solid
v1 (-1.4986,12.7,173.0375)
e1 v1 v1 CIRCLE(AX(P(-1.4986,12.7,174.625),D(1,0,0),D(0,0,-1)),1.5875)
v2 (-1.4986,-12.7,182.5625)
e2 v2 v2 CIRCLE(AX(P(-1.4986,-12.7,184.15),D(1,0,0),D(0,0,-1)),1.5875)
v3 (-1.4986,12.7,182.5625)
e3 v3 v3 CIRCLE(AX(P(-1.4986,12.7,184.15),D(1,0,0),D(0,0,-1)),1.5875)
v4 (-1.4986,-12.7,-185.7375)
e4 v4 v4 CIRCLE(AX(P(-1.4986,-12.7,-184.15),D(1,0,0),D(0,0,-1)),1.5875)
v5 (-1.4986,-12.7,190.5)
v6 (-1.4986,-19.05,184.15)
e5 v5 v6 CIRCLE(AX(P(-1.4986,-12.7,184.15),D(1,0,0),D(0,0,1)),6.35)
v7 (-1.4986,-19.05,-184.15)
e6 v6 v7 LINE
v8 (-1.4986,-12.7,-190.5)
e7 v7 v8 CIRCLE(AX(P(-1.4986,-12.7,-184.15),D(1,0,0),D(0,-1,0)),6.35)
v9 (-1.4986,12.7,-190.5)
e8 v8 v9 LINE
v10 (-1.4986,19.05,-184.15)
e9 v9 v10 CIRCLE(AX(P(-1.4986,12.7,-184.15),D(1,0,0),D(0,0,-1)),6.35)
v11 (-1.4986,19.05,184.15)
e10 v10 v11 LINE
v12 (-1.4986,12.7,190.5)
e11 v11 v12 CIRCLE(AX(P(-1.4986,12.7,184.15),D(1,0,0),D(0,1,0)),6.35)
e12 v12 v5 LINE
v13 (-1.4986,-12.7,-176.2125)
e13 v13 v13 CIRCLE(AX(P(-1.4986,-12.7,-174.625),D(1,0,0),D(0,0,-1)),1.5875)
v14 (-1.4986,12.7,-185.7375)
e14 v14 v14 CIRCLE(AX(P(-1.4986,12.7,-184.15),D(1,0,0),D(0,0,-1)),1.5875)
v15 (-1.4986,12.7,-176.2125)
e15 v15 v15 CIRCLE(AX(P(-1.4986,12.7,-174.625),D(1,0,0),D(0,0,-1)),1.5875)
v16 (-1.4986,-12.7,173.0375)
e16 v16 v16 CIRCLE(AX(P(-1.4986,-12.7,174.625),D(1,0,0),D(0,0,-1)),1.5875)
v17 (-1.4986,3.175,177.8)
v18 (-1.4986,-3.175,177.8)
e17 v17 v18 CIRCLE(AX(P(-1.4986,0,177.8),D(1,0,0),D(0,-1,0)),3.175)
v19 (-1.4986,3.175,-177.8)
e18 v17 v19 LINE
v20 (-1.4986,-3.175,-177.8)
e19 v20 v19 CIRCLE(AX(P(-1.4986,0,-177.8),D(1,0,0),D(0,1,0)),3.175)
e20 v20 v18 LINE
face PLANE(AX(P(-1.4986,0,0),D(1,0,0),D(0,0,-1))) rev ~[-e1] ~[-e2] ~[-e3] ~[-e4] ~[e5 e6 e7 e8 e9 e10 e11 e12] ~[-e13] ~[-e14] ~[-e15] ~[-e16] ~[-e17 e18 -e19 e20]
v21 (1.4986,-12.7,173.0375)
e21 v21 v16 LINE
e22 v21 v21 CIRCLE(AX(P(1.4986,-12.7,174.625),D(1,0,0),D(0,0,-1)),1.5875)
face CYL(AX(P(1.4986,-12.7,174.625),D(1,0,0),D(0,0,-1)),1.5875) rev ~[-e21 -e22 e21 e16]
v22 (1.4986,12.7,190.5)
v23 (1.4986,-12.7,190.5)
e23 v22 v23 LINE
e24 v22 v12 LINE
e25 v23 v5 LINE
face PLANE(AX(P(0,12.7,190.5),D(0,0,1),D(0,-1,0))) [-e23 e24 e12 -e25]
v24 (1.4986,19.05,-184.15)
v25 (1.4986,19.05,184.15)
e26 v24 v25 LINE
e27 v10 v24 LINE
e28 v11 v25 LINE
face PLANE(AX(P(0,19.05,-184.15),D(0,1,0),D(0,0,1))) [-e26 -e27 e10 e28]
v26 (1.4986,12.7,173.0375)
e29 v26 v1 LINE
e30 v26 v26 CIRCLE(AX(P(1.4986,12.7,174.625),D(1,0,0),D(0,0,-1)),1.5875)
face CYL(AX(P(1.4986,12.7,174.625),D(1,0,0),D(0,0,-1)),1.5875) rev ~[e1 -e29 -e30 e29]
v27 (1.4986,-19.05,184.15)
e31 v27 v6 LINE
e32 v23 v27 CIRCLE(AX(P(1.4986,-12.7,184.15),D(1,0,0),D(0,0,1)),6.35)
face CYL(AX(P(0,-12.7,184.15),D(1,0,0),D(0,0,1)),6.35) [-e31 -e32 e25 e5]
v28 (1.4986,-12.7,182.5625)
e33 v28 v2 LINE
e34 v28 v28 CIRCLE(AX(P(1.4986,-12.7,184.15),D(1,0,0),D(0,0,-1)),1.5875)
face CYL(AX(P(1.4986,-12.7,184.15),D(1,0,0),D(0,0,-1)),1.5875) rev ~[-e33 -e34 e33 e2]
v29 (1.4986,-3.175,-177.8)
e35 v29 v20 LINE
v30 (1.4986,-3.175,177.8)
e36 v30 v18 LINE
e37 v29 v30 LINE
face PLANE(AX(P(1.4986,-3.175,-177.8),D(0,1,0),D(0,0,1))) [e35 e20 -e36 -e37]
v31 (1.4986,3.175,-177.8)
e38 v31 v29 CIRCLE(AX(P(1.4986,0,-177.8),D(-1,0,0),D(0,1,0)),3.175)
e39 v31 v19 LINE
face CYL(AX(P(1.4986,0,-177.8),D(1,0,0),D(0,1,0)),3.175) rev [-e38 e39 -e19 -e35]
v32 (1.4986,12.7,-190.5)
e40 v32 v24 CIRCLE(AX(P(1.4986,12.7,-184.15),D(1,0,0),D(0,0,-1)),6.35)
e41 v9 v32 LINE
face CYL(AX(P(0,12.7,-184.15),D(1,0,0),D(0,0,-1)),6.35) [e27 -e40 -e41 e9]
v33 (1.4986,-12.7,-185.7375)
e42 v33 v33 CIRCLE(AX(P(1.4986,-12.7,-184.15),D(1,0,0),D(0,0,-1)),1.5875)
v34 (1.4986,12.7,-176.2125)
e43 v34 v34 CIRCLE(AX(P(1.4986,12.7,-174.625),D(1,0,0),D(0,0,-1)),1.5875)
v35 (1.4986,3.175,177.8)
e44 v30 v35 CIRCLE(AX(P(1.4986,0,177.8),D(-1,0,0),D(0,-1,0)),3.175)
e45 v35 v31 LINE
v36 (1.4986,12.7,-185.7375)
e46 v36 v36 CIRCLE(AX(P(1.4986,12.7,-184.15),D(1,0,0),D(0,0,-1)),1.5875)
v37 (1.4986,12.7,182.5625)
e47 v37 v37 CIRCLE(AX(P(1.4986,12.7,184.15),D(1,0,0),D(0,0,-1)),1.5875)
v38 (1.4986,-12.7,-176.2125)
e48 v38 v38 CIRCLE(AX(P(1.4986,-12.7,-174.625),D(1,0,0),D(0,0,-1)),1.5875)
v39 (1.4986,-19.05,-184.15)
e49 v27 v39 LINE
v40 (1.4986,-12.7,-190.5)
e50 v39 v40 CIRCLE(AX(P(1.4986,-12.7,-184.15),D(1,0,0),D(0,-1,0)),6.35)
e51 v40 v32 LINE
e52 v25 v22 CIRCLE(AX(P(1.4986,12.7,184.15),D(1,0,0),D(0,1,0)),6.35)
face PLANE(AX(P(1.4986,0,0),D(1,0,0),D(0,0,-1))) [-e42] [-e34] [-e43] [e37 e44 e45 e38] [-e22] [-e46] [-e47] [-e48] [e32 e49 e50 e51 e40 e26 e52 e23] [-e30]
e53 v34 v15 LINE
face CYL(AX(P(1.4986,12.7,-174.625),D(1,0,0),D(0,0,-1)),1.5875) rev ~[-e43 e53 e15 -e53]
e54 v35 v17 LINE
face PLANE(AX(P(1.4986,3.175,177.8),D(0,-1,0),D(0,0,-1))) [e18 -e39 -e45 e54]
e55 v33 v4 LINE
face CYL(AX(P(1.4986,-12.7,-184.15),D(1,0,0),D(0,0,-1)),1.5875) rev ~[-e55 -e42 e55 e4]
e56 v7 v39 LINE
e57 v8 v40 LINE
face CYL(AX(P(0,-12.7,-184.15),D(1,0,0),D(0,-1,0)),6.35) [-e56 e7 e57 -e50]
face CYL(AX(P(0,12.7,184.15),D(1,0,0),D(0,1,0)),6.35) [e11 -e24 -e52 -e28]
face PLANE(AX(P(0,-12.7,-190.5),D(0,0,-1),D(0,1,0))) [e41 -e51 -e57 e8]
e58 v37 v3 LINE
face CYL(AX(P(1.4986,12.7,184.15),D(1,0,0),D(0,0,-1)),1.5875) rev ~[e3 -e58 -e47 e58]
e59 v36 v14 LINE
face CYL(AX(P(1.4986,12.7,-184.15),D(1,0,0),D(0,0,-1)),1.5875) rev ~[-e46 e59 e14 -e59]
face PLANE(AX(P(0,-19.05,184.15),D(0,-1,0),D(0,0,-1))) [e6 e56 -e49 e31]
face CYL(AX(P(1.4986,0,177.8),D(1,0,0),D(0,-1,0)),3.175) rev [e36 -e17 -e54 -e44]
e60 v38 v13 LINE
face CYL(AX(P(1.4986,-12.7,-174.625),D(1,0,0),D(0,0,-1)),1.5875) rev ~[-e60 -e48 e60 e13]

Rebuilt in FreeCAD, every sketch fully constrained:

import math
import FreeCAD as App
import Part
import Sketcher
from FreeCAD import Vector
Q = App.Units.Quantity

doc = App.newDocument("Part")
body = doc.addObject("PartDesign::Body", "Body")

# Sketch on YZ plane
sketch1 = body.newObject("Sketcher::SketchObject", "Sketch")
sketch1.AttachmentSupport = (doc.getObject("YZ_Plane"), [""])
sketch1.MapMode = "FlatFace"
sketch1.addGeometry(Part.LineSegment(Vector(-19, 184, 0), Vector(-19, -184, 0)), False)
sketch1.addGeometry(Part.ArcOfCircle(Part.Circle(Vector(-13, -184, 0), Vector(0, 0, 1), 6), math.radians(180), math.radians(270)), False)
sketch1.addGeometry(Part.LineSegment(Vector(-13, -190, 0), Vector(13, -190, 0)), False)
sketch1.addGeometry(Part.ArcOfCircle(Part.Circle(Vector(13, -184, 0), Vector(0, 0, 1), 6), math.radians(-90), math.radians(0)), False)
sketch1.addGeometry(Part.LineSegment(Vector(19, -184, 0), Vector(19, 184, 0)), False)
sketch1.addGeometry(Part.ArcOfCircle(Part.Circle(Vector(13, 184, 0), Vector(0, 0, 1), 6), math.radians(0), math.radians(90)), False)
sketch1.addGeometry(Part.LineSegment(Vector(13, 190, 0), Vector(-13, 190, 0)), False)
sketch1.addGeometry(Part.ArcOfCircle(Part.Circle(Vector(-13, 184, 0), Vector(0, 0, 1), 6), math.radians(90), math.radians(180)), False)
sketch1.addConstraint(Sketcher.Constraint("Tangent", 0, 2, 1, 1))
sketch1.addConstraint(Sketcher.Constraint("Tangent", 1, 2, 2, 1))
sketch1.addConstraint(Sketcher.Constraint("Tangent", 2, 2, 3, 1))
sketch1.addConstraint(Sketcher.Constraint("Tangent", 3, 2, 4, 1))
sketch1.addConstraint(Sketcher.Constraint("Tangent", 4, 2, 5, 1))
sketch1.addConstraint(Sketcher.Constraint("Tangent", 5, 2, 6, 1))
sketch1.addConstraint(Sketcher.Constraint("Tangent", 6, 2, 7, 1))
sketch1.addConstraint(Sketcher.Constraint("Tangent", 7, 2, 0, 1))
sketch1.addConstraint(Sketcher.Constraint("Vertical", 0))
sketch1.addConstraint(Sketcher.Constraint("Horizontal", 2))
sketch1.addConstraint(Sketcher.Constraint("Vertical", 4))
sketch1.addConstraint(Sketcher.Constraint("Horizontal", 6))
sketch1.addConstraint(Sketcher.Constraint("Equal", 1, 3))
sketch1.addConstraint(Sketcher.Constraint("Equal", 3, 5))
sketch1.addConstraint(Sketcher.Constraint("Equal", 5, 7))
sketch1.addConstraint(Sketcher.Constraint("Symmetric", 1, 3, 5, 3, -1, 1))
sketch1.addConstraint(Sketcher.Constraint("DistanceX", 2, 1, 2, 2, Q("1 in")))
sketch1.addConstraint(Sketcher.Constraint("Radius", 1, Q("0.25 in")))
sketch1.addConstraint(Sketcher.Constraint("DistanceY", 0, 2, 0, 1, Q("14.5 in")))
pad1 = body.newObject("PartDesign::Pad", "Pad")
pad1.Profile = sketch1
pad1.Length = Q("0.118 in")
pad1.Midplane = True

# Sketch on YZ plane
sketch2 = body.newObject("Sketcher::SketchObject", "Sketch001")
sketch2.AttachmentSupport = (doc.getObject("YZ_Plane"), [""])
sketch2.MapMode = "FlatFace"
sketch2.AttachmentOffset = App.Placement(Vector(0, 0, 0.059 * 25.4), App.Rotation())
sketch2.addGeometry(Part.LineSegment(Vector(3.2, -177.8, 0), Vector(3.2, 177.8, 0)), False)
sketch2.addGeometry(Part.ArcOfCircle(Part.Circle(Vector(0, 177.8, 0), Vector(0, 0, 1), 3.2), math.radians(0), math.radians(180)), False)
sketch2.addGeometry(Part.LineSegment(Vector(-3.2, 177.8, 0), Vector(-3.2, -177.8, 0)), False)
sketch2.addGeometry(Part.ArcOfCircle(Part.Circle(Vector(0, -177.8, 0), Vector(0, 0, 1), 3.2), math.radians(180), math.radians(360)), False)
sketch2.addConstraint(Sketcher.Constraint("Tangent", 0, 2, 1, 1))
sketch2.addConstraint(Sketcher.Constraint("Tangent", 1, 2, 2, 1))
sketch2.addConstraint(Sketcher.Constraint("Tangent", 2, 2, 3, 1))
sketch2.addConstraint(Sketcher.Constraint("Tangent", 3, 2, 0, 1))
sketch2.addConstraint(Sketcher.Constraint("Vertical", 0))
sketch2.addConstraint(Sketcher.Constraint("Vertical", 2))
sketch2.addConstraint(Sketcher.Constraint("Symmetric", 1, 3, 3, 3, -1, 1))
sketch2.addConstraint(Sketcher.Constraint("DistanceY", 0, 1, 0, 2, Q("14 in")))
sketch2.addConstraint(Sketcher.Constraint("Radius", 1, Q("0.125 in")))
pocket1 = body.newObject("PartDesign::Pocket", "Pocket")
pocket1.Profile = sketch2
pocket1.Type = "ThroughAll"

# Sketch on YZ plane
sketch3 = body.newObject("Sketcher::SketchObject", "Sketch002")
sketch3.AttachmentSupport = (doc.getObject("YZ_Plane"), [""])
sketch3.MapMode = "FlatFace"
sketch3.AttachmentOffset = App.Placement(Vector(0, 0, 0.059 * 25.4), App.Rotation())
sketch3.addGeometry(Part.Circle(Vector(12.7, 184.2, 0), Vector(0, 0, 1), 1.6), False)
sketch3.addGeometry(Part.Circle(Vector(12.7, 174.6, 0), Vector(0, 0, 1), 1.6), False)
sketch3.addGeometry(Part.Circle(Vector(-12.7, 174.6, 0), Vector(0, 0, 1), 1.6), False)
sketch3.addGeometry(Part.Circle(Vector(-12.7, 184.2, 0), Vector(0, 0, 1), 1.6), False)
sketch3.addGeometry(Part.Circle(Vector(12.7, -174.6, 0), Vector(0, 0, 1), 1.6), False)
sketch3.addGeometry(Part.Circle(Vector(12.7, -184.2, 0), Vector(0, 0, 1), 1.6), False)
sketch3.addGeometry(Part.Circle(Vector(-12.7, -184.2, 0), Vector(0, 0, 1), 1.6), False)
sketch3.addGeometry(Part.Circle(Vector(-12.7, -174.6, 0), Vector(0, 0, 1), 1.6), False)
sketch3.addConstraint(Sketcher.Constraint("Equal", 0, 1))
sketch3.addConstraint(Sketcher.Constraint("Equal", 1, 2))
sketch3.addConstraint(Sketcher.Constraint("Equal", 2, 3))
sketch3.addConstraint(Sketcher.Constraint("Equal", 3, 4))
sketch3.addConstraint(Sketcher.Constraint("Equal", 4, 5))
sketch3.addConstraint(Sketcher.Constraint("Equal", 5, 6))
sketch3.addConstraint(Sketcher.Constraint("Equal", 6, 7))
sketch3.addConstraint(Sketcher.Constraint("Symmetric", 2, 3, 4, 3, -1, 1))
sketch3.addConstraint(Sketcher.Constraint("Symmetric", 3, 3, 5, 3, -1, 1))
sketch3.addConstraint(Sketcher.Constraint("Symmetric", 0, 3, 6, 3, -1, 1))
sketch3.addConstraint(Sketcher.Constraint("Symmetric", 1, 3, 7, 3, -1, 1))
sketch3.addConstraint(Sketcher.Constraint("Symmetric", 1, 3, 2, 3, -2))
sketch3.addConstraint(Sketcher.Constraint("Symmetric", 0, 3, 3, 3, -2))
sketch3.addConstraint(Sketcher.Constraint("Vertical", 0, 3, 1, 3))
sketch3.addConstraint(Sketcher.Constraint("Diameter", 0, Q("0.125 in")))
sketch3.addConstraint(Sketcher.Constraint("DistanceX", 2, 3, 1, 3, Q("1 in")))
sketch3.addConstraint(Sketcher.Constraint("DistanceY", 5, 3, 0, 3, Q("14.5 in")))
sketch3.addConstraint(Sketcher.Constraint("DistanceY", 4, 3, 1, 3, Q("13.75 in")))
pocket2 = body.newObject("PartDesign::Pocket", "Pocket001")
pocket2.Profile = sketch3
pocket2.Type = "ThroughAll"

doc.recompute()
